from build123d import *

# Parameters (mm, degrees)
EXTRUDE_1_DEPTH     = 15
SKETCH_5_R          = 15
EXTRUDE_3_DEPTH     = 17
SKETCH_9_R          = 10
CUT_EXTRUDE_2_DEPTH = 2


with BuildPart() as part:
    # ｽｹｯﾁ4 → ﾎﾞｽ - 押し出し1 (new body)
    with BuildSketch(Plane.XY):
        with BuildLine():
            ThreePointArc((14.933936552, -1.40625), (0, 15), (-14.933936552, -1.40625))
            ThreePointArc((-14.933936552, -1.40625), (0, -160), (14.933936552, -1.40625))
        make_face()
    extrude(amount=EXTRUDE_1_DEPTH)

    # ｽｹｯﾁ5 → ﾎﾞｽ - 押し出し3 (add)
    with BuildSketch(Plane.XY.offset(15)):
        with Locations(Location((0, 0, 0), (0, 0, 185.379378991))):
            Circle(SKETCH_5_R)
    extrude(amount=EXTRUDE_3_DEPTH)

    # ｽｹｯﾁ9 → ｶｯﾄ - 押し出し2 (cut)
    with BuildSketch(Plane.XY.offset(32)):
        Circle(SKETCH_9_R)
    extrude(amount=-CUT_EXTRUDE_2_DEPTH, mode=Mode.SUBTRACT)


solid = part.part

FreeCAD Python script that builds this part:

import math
import FreeCAD as App
import Part
import Sketcher
Q = App.Units.Quantity

doc = App.newDocument("Part")
body = doc.addObject("PartDesign::Body", "Body")

# Sketch on XY plane
sketch1 = body.newObject("Sketcher::SketchObject", "Sketch")
sketch1.AttachmentSupport = (doc.getObject("XY_Plane"), [""])
sketch1.MapMode = "FlatFace"
sketch1.addGeometry(Part.ArcOfCircle(Part.Circle(App.Vector(0, 0, 0), App.Vector(0, 0, 1), 15), math.radians(-5), math.radians(185)), False)
sketch1.addGeometry(Part.ArcOfCircle(Part.Circle(App.Vector(0, -80, 0), App.Vector(0, 0, 1), 80), math.radians(101), math.radians(439)), False)
sketch1.addConstraint(Sketcher.Constraint("Coincident", 0, 1, 1, 2))
sketch1.addConstraint(Sketcher.Constraint("Coincident", 1, 1, 0, 2))
sketch1.addConstraint(Sketcher.Constraint("Coincident", 0, 3, -1, 1))
sketch1.addConstraint(Sketcher.Constraint("PointOnObject", 1, 3, -2))
sketch1.addConstraint(Sketcher.Constraint("Radius", 0, Q("15 mm")))
sketch1.addConstraint(Sketcher.Constraint("Radius", 1, Q("80 mm")))
sketch1.addConstraint(Sketcher.Constraint("DistanceY", 1, 3, -1, 1, Q("80 mm")))
pad1 = body.newObject("PartDesign::Pad", "Pad")
pad1.Profile = sketch1
pad1.Length = 15

# Sketch on XY plane
sketch2 = body.newObject("Sketcher::SketchObject", "Sketch001")
sketch2.AttachmentSupport = (doc.getObject("XY_Plane"), [""])
sketch2.MapMode = "FlatFace"
sketch2.AttachmentOffset = App.Placement(App.Vector(0, 0, 15), App.Rotation())
sketch2.addGeometry(Part.Circle(App.Vector(0, 0, 0), App.Vector(0, 0, 1), 15), False)
sketch2.addConstraint(Sketcher.Constraint("Coincident", 0, 3, -1, 1))
sketch2.addConstraint(Sketcher.Constraint("Diameter", 0, Q("30 mm")))
pad2 = body.newObject("PartDesign::Pad", "Pad001")
pad2.Profile = sketch2
pad2.Length = 17

# Sketch on XY plane
sketch3 = body.newObject("Sketcher::SketchObject", "Sketch002")
sketch3.AttachmentSupport = (doc.getObject("XY_Plane"), [""])
sketch3.MapMode = "FlatFace"
sketch3.AttachmentOffset = App.Placement(App.Vector(0, 0, 32), App.Rotation())
sketch3.addGeometry(Part.Circle(App.Vector(0, 0, 0), App.Vector(0, 0, 1), 10), False)
sketch3.addConstraint(Sketcher.Constraint("Coincident", 0, 3, -1, 1))
sketch3.addConstraint(Sketcher.Constraint("Diameter", 0, Q("20 mm")))
pocket1 = body.newObject("PartDesign::Pocket", "Pocket")
pocket1.Profile = sketch3
pocket1.Length = 2

doc.recompute()
